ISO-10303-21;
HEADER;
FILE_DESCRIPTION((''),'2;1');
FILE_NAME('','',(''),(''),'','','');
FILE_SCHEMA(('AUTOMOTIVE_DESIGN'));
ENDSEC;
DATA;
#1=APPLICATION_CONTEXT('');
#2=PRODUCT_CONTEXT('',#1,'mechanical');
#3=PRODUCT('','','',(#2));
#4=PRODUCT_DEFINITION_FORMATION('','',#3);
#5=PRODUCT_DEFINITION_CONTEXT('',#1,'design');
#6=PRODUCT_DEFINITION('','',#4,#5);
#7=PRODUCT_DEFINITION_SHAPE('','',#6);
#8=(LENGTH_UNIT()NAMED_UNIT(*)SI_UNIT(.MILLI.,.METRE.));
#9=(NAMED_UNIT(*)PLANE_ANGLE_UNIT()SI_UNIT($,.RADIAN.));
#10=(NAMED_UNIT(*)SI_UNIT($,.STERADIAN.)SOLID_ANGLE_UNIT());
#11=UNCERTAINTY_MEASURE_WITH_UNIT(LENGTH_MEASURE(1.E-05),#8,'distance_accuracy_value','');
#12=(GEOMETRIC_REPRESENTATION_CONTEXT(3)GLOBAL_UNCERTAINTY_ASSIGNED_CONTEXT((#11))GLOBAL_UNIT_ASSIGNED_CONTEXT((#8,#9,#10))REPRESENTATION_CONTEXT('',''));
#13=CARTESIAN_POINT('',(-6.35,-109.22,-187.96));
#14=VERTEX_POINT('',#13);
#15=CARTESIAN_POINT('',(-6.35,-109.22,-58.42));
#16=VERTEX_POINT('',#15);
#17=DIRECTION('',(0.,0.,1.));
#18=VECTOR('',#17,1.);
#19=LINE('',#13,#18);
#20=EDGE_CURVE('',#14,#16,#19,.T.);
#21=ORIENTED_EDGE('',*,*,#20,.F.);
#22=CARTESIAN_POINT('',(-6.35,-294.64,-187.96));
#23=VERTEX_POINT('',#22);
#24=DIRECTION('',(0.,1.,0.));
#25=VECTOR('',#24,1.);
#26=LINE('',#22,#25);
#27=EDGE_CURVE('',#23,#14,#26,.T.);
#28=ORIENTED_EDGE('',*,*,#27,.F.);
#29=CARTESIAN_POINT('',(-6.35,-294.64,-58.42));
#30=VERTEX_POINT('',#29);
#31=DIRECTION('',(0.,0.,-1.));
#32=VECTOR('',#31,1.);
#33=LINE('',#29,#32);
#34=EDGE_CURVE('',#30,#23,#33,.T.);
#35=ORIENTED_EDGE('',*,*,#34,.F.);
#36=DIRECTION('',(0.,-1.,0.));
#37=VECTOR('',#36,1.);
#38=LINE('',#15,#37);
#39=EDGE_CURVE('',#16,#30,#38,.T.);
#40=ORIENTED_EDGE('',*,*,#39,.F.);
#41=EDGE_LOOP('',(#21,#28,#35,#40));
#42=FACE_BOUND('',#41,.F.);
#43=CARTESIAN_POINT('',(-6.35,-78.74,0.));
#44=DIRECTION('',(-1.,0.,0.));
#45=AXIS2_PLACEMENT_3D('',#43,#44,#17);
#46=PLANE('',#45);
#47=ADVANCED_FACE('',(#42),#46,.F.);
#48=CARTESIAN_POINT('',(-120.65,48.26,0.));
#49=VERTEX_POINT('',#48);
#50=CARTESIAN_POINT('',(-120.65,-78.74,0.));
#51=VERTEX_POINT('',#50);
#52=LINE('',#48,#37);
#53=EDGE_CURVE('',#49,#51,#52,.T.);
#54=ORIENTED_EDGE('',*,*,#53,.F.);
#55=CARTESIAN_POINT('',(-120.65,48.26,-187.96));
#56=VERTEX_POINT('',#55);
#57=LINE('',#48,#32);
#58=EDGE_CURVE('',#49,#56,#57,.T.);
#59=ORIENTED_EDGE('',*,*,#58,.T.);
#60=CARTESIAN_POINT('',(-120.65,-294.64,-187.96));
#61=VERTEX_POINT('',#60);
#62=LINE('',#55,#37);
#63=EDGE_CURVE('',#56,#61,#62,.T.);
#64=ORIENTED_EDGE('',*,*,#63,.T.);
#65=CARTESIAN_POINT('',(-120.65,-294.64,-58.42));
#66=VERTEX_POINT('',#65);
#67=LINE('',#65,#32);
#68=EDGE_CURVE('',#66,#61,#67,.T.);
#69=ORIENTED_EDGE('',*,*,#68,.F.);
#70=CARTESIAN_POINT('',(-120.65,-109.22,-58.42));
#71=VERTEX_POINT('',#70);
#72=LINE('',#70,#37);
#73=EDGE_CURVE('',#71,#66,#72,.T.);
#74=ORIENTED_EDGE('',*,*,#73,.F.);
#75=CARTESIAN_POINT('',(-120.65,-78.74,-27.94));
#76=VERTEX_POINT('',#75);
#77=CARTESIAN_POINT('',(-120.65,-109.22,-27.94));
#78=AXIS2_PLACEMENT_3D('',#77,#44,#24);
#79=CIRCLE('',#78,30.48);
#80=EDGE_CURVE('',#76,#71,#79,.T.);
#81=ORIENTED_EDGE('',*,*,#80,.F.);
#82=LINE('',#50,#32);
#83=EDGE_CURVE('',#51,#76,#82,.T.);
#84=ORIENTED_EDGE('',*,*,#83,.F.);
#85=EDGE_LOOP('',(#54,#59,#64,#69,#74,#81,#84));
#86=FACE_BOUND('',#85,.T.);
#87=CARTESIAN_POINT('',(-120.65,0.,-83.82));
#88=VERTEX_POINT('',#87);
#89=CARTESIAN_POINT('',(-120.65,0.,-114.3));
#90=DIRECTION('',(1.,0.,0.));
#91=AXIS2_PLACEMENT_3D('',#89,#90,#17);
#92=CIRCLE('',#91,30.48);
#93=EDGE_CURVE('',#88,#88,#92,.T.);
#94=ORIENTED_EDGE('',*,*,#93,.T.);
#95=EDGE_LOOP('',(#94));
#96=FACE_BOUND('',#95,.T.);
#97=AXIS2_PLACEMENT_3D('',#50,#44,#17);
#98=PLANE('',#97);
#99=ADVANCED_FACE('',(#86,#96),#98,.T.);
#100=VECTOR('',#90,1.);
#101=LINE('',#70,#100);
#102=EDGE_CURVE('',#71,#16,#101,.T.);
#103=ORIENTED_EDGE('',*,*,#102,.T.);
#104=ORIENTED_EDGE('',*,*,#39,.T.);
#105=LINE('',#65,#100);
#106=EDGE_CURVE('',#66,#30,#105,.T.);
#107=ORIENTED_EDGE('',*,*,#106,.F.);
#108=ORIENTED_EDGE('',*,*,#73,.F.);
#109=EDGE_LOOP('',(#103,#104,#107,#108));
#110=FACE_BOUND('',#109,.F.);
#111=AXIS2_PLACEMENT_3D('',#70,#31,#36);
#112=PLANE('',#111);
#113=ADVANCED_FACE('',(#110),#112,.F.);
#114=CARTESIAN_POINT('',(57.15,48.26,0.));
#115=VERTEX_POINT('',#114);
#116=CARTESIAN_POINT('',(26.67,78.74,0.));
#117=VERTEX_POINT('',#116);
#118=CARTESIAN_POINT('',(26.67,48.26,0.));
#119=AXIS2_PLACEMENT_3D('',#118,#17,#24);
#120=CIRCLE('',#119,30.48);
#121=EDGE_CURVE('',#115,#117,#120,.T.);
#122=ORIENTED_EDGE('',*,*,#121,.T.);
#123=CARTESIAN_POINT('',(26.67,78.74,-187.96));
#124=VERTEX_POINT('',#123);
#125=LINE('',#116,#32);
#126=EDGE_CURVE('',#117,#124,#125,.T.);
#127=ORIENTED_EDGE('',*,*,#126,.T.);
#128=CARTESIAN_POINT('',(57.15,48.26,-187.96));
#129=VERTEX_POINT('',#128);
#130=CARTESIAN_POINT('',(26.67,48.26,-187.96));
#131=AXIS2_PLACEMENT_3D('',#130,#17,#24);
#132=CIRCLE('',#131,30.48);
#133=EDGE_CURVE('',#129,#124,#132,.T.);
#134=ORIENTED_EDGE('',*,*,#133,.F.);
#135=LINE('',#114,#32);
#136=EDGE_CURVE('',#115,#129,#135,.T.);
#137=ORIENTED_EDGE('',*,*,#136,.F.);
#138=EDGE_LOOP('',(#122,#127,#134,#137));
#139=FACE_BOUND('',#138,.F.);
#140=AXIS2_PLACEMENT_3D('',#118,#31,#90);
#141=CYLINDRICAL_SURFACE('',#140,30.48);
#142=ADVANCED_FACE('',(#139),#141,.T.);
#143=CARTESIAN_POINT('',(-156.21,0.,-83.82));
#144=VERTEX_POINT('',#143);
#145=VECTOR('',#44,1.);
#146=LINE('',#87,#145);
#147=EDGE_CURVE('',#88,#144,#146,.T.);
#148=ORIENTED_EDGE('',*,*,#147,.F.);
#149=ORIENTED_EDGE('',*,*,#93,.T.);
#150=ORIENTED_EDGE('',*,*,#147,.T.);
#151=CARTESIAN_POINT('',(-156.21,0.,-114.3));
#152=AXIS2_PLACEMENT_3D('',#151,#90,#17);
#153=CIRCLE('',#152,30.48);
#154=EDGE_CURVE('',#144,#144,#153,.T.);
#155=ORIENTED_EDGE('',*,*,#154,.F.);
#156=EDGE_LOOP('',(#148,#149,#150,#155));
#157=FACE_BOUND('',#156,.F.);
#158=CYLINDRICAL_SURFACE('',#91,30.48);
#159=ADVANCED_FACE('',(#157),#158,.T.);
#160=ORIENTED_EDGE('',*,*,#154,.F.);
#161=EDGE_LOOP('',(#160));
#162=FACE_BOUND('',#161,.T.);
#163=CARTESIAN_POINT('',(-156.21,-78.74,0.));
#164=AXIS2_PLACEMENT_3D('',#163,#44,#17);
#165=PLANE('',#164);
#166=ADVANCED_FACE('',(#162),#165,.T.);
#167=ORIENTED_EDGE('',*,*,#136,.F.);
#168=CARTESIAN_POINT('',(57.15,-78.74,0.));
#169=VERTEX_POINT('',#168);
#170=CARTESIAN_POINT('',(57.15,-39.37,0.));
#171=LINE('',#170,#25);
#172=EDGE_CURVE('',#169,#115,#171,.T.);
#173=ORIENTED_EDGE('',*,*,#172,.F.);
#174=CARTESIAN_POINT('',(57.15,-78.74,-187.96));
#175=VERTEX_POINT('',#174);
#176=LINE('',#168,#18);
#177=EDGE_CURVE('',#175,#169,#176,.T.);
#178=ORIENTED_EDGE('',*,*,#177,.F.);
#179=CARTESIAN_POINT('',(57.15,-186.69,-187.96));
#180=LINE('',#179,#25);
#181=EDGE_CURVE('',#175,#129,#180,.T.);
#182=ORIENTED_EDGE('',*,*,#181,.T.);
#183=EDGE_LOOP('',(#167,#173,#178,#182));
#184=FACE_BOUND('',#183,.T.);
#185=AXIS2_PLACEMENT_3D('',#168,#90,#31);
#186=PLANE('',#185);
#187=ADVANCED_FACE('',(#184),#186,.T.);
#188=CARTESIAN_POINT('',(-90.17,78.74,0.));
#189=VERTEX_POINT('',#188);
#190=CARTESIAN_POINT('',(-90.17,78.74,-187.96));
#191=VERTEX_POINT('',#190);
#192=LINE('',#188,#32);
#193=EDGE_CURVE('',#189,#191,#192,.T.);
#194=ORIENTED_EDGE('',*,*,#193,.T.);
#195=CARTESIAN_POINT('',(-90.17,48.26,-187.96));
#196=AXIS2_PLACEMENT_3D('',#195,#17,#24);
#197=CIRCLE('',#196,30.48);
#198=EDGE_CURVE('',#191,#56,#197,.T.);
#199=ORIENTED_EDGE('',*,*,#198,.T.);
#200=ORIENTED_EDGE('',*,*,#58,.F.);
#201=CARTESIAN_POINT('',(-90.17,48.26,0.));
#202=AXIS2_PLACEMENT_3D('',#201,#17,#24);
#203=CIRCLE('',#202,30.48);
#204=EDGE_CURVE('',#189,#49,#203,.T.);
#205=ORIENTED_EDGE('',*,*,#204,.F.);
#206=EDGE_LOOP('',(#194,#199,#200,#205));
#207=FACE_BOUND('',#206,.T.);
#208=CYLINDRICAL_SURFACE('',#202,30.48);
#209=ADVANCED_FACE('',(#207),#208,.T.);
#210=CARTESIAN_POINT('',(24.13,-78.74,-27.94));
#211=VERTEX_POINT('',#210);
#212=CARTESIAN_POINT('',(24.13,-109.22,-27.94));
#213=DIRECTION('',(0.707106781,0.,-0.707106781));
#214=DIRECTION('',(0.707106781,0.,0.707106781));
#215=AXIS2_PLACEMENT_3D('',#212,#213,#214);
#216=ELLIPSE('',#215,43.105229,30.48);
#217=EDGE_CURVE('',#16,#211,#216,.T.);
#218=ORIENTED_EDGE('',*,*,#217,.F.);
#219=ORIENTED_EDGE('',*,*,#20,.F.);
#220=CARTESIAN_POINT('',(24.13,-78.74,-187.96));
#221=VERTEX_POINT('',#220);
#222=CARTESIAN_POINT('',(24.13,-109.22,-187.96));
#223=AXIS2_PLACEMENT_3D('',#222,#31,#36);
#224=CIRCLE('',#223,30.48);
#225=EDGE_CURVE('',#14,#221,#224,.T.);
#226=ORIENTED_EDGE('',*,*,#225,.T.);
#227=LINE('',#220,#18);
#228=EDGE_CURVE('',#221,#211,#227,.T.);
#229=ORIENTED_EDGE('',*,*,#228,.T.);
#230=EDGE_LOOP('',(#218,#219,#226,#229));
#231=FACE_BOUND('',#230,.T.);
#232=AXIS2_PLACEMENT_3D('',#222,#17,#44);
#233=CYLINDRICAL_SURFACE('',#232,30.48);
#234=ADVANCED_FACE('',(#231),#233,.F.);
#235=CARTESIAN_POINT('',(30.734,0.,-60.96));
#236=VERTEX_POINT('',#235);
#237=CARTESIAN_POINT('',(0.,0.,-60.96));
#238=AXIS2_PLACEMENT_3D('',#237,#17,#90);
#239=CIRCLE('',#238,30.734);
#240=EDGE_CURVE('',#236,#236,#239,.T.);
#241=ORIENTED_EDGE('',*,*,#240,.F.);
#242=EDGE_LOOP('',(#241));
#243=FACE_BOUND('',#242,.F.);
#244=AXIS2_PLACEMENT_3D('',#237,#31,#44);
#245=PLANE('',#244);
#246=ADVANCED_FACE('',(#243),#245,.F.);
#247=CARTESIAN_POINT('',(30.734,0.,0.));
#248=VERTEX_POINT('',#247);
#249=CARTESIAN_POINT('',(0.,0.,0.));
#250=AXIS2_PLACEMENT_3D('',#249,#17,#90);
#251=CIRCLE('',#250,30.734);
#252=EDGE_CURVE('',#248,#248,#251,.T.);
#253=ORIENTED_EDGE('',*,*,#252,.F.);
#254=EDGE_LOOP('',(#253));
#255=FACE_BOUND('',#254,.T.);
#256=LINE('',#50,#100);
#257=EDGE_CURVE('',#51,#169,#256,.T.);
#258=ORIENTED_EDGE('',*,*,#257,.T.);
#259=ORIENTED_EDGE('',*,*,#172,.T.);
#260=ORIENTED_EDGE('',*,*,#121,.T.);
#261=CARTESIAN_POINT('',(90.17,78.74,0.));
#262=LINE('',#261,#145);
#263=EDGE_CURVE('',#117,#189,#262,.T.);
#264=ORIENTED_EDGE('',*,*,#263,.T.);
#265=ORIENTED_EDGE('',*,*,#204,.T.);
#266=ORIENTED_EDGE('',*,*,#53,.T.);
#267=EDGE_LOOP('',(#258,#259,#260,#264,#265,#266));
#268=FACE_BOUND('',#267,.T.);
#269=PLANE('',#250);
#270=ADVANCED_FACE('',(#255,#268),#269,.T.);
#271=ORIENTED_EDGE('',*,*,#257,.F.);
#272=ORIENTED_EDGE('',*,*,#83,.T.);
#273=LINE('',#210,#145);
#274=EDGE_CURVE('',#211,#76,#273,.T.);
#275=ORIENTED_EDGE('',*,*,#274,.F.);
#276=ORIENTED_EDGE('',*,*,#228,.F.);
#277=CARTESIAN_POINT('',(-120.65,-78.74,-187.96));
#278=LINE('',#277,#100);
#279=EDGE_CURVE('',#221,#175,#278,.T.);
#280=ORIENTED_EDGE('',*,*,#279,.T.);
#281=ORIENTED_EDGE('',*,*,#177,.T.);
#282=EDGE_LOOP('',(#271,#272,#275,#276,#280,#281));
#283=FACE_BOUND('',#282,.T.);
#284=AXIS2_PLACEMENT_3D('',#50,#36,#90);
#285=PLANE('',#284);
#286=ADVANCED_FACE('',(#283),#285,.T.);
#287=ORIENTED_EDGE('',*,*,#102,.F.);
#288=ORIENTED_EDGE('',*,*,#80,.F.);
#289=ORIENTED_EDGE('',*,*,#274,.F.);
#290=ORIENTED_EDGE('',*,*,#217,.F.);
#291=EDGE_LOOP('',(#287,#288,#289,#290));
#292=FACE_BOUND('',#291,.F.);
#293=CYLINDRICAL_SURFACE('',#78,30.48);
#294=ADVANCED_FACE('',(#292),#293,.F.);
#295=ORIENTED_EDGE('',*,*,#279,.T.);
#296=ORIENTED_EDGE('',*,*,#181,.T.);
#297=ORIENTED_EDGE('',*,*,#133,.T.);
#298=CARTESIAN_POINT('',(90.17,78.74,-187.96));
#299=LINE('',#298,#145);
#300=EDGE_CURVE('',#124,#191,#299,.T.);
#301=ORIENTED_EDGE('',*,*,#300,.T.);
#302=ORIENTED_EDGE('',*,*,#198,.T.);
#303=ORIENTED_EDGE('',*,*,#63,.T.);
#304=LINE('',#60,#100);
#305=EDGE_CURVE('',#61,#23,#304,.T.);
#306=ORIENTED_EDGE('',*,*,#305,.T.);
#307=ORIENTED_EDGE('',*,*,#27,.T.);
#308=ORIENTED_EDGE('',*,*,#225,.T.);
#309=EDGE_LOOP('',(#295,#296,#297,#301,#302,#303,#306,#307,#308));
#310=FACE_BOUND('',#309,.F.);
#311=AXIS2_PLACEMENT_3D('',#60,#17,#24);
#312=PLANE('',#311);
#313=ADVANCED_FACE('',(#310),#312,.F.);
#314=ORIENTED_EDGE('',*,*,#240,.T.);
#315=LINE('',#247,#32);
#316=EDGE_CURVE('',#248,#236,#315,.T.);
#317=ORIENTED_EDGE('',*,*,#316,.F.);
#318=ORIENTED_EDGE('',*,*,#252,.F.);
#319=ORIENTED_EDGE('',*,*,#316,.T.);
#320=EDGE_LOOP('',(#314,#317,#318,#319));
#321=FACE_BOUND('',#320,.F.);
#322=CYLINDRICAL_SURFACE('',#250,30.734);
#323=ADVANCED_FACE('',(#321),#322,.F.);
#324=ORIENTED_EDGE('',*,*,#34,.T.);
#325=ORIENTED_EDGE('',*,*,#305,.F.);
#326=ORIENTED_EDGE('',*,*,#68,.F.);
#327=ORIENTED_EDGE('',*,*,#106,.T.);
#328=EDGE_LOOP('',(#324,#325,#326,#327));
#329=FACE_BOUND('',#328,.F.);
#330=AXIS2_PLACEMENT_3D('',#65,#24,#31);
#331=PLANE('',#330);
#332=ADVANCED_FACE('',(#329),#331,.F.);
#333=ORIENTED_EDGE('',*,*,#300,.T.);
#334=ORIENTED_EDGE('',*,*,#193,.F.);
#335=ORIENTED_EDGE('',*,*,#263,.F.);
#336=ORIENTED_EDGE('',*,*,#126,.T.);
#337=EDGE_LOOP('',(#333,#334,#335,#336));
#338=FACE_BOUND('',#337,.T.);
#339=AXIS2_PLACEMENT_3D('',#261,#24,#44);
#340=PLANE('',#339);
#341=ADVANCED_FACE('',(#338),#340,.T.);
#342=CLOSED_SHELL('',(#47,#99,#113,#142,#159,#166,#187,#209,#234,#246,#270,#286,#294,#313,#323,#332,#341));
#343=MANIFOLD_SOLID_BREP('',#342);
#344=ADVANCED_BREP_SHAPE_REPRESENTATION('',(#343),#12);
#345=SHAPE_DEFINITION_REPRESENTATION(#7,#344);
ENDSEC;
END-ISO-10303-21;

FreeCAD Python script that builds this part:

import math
import FreeCAD as App
import Part
import Sketcher
Q = App.Units.Quantity


def edges_at(feature, points):
    """Names of the edges that pass closest to the given points."""
    edges = feature.Shape.Edges
    near = lambda p: min(range(len(edges)), key=lambda i: edges[i].distToShape(Part.Vertex(*p))[0])
    return sorted({f"Edge{near(p) + 1}" for p in points})

doc = App.newDocument("Part")
params = doc.addObject("Spreadsheet::Sheet", "Params")
for row, (alias, value) in enumerate([
    ("sketch1_radius", "1.2 in"),
    ("sketch1_diameter", "2.42 in"),
    ("sketch1_width", "9.5 in"),
    ("pad1_length", "7.4 in"),
    ("pad2_length", "5 in"),
    ("sketch3_radius", "1.2 in"),
    ("sketch3_height", "5.1 in"),
    ("sketch3_width", "7.3 in"),
    ("pad3_length", "4.5 in"),
    ("fillet_radius", "1.2 in"),
    ("sketch4_diameter", "2.4 in"),
    ("pad4_length", "1.4 in"),
    ("sketch5_width", "8.0625 in"),
    ("sketch5_height", "9.9375 in"),
    ("pocket1_length", "2.5 in"),
    ("fillet2_radius", "1.2 in"),
], start=1):
    params.set(f"A{row}", alias)
    params.set(f"B{row}", "=" + value)
    params.setAlias(f"B{row}", alias)

body = doc.addObject("PartDesign::Body", "Body")

sketch1 = body.newObject("Sketcher::SketchObject", "Sketch")
sketch1.AttachmentSupport = (doc.getObject("XY_Plane"), [""])
sketch1.MapMode = "FlatFace"
sketch1.addGeometry([
    Part.LineSegment(App.Vector(-121, 48, 0), App.Vector(-121, -79, 0)),
    Part.LineSegment(App.Vector(-121, -79, 0), App.Vector(121, -79, 0)),
    Part.LineSegment(App.Vector(121, -79, 0), App.Vector(121, 48, 0)),
    Part.ArcOfCircle(Part.Circle(App.Vector(90, 48, 0), App.Vector(0, 0, 1), 30), math.radians(0), math.radians(90)),
    Part.LineSegment(App.Vector(90, 79, 0), App.Vector(-90, 79, 0)),
    Part.ArcOfCircle(Part.Circle(App.Vector(-90, 48, 0), App.Vector(0, 0, 1), 30), math.radians(90), math.radians(180)),
    Part.Circle(App.Vector(0, 0, 0), App.Vector(0, 0, 1), 31),
], False)
sketch1.addConstraint([
    Sketcher.Constraint("Coincident", 0, 2, 1, 1),
    Sketcher.Constraint("Coincident", 1, 2, 2, 1),
    Sketcher.Constraint("Tangent", 2, 2, 3, 1),
    Sketcher.Constraint("Tangent", 3, 2, 4, 1),
    Sketcher.Constraint("Tangent", 4, 2, 5, 1),
    Sketcher.Constraint("Tangent", 5, 2, 0, 1),
    Sketcher.Constraint("Vertical", 0),
    Sketcher.Constraint("Horizontal", 1),
    Sketcher.Constraint("Vertical", 2),
    Sketcher.Constraint("Horizontal", 4),
    Sketcher.Constraint("Coincident", 6, 3, -1, 1),
    Sketcher.Constraint("Equal", 3, 5),
    Sketcher.Constraint("Radius", 3, Q("1.2 in")),
    Sketcher.Constraint("Diameter", 6, Q("2.42 in")),
    Sketcher.Constraint("DistanceX", 1, 1, 1, 2, Q("9.5 in")),
    Sketcher.Constraint("DistanceY", 0, 2, -1, 1, Q("3.1 in")),
    Sketcher.Constraint("DistanceY", -1, 1, 3, 2, Q("3.1 in")),
    Sketcher.Constraint("DistanceX", 0, 2, -1, 1, Q("4.75 in")),
])
sketch1.setExpression("Constraints[12]", "Params.sketch1_radius")
sketch1.setExpression("Constraints[13]", "Params.sketch1_diameter")
sketch1.setExpression("Constraints[14]", "Params.sketch1_width")
pad1 = body.newObject("PartDesign::Pad", "Pad")
pad1.Profile = sketch1
pad1.setExpression("Length", "Params.pad1_length")
pad1.Reversed = True

sketch2 = body.newObject("Sketcher::SketchObject", "Sketch001")
sketch2.AttachmentSupport = (doc.getObject("XY_Plane"), [""])
sketch2.MapMode = "FlatFace"
sketch2.AttachmentOffset = App.Placement(App.Vector(0, 0, -7.4 * 25.4), App.Rotation())
sketch2.addGeometry(Part.Circle(App.Vector(0, 0, 0), App.Vector(0, 0, 1), 52), False)
sketch2.addConstraint([
    Sketcher.Constraint("Coincident", 0, 3, -1, 1),
    Sketcher.Constraint("Diameter", 0, Q("104.0024 mm")),
])
pad2 = body.newObject("PartDesign::Pad", "Pad001")
pad2.Profile = sketch2
pad2.setExpression("Length", "Params.pad2_length")

sketch3 = body.newObject("Sketcher::SketchObject", "Sketch002")
sketch3.AttachmentSupport = (doc.getObject("YZ_Plane"), [""])
sketch3.MapMode = "FlatFace"
sketch3.AttachmentOffset = App.Placement(App.Vector(0, 0, -4.75 * 25.4), App.Rotation())
sketch3.addGeometry([
    Part.LineSegment(App.Vector(-295, -58, 0), App.Vector(-109, -58, 0)),
    Part.ArcOfCircle(Part.Circle(App.Vector(-109, -28, 0), App.Vector(0, 0, 1), 30), math.radians(-90), math.radians(0)),
    Part.LineSegment(App.Vector(-79, -28, 0), App.Vector(-79, -188, 0)),
    Part.LineSegment(App.Vector(-79, -188, 0), App.Vector(-295, -188, 0)),
    Part.LineSegment(App.Vector(-295, -188, 0), App.Vector(-295, -58, 0)),
], False)
sketch3.addConstraint([
    Sketcher.Constraint("Tangent", 0, 2, 1, 1),
    Sketcher.Constraint("Tangent", 1, 2, 2, 1),
    Sketcher.Constraint("Coincident", 2, 2, 3, 1),
    Sketcher.Constraint("Coincident", 3, 2, 4, 1),
    Sketcher.Constraint("Coincident", 4, 2, 0, 1),
    Sketcher.Constraint("Horizontal", 0),
    Sketcher.Constraint("Vertical", 2),
    Sketcher.Constraint("Horizontal", 3),
    Sketcher.Constraint("Vertical", 4),
    Sketcher.Constraint("Radius", 1, Q("1.2 in")),
    Sketcher.Constraint("DistanceY", 4, 1, 4, 2, Q("5.1 in")),
    Sketcher.Constraint("DistanceX", 0, 1, 0, 2, Q("7.3 in")),
    Sketcher.Constraint("DistanceX", 1, 3, -1, 1, Q("4.3 in")),
    Sketcher.Constraint("DistanceY", 1, 3, -1, 1, Q("1.1 in")),
])
sketch3.setExpression("Constraints[9]", "Params.sketch3_radius")
sketch3.setExpression("Constraints[10]", "Params.sketch3_height")
sketch3.setExpression("Constraints[11]", "Params.sketch3_width")
pad3 = body.newObject("PartDesign::Pad", "Pad002")
pad3.Profile = sketch3
pad3.setExpression("Length", "Params.pad3_length")
doc.recompute()

fillet = body.newObject("PartDesign::Fillet", "Fillet")
fillet.Base = (pad3, edges_at(pad3, [(-6.35, -78.74, -107.95)]))
fillet.setExpression("Radius", "Params.fillet_radius")

sketch4 = body.newObject("Sketcher::SketchObject", "Sketch003")
sketch4.AttachmentSupport = (doc.getObject("YZ_Plane"), [""])
sketch4.MapMode = "FlatFace"
sketch4.AttachmentOffset = App.Placement(App.Vector(0, 0, -4.75 * 25.4), App.Rotation())
sketch4.addGeometry(Part.Circle(App.Vector(0, -114, 0), App.Vector(0, 0, 1), 30), False)
sketch4.addConstraint([
    Sketcher.Constraint("PointOnObject", 0, 3, -2),
    Sketcher.Constraint("Diameter", 0, Q("2.4 in")),
    Sketcher.Constraint("DistanceY", 0, 3, -1, 1, Q("4.5 in")),
])
sketch4.setExpression("Constraints[1]", "Params.sketch4_diameter")
pad4 = body.newObject("PartDesign::Pad", "Pad003")
pad4.Profile = sketch4
pad4.setExpression("Length", "Params.pad4_length")
pad4.Reversed = True

sketch5 = body.newObject("Sketcher::SketchObject", "Sketch004")
sketch5.AttachmentSupport = (doc.getObject("YZ_Plane"), [""])
sketch5.MapMode = "FlatFace"
sketch5.AttachmentOffset = App.Placement(App.Vector(0, 0, 4.75 * 25.4), App.Rotation())
sketch5.addGeometry([
    Part.LineSegment(App.Vector(109, 24, 0), App.Vector(-96, 24, 0)),
    Part.LineSegment(App.Vector(-96, 24, 0), App.Vector(-96, -229, 0)),
    Part.LineSegment(App.Vector(-96, -229, 0), App.Vector(109, -229, 0)),
    Part.LineSegment(App.Vector(109, -229, 0), App.Vector(109, 24, 0)),
], False)
sketch5.addConstraint([
    Sketcher.Constraint("Coincident", 0, 2, 1, 1),
    Sketcher.Constraint("Coincident", 1, 2, 2, 1),
    Sketcher.Constraint("Coincident", 2, 2, 3, 1),
    Sketcher.Constraint("Coincident", 3, 2, 0, 1),
    Sketcher.Constraint("Horizontal", 0),
    Sketcher.Constraint("Vertical", 1),
    Sketcher.Constraint("Horizontal", 2),
    Sketcher.Constraint("Vertical", 3),
    Sketcher.Constraint("DistanceY", 1, 2, -1, 1, Q("9 in")),
    Sketcher.Constraint("DistanceX", 0, 2, 0, 1, Q("8.0625 in")),
    Sketcher.Constraint("DistanceY", 1, 2, 1, 1, Q("9.9375 in")),
    Sketcher.Constraint("DistanceX", -1, 1, 2, 2, Q("4.275 in")),
])
sketch5.setExpression("Constraints[9]", "Params.sketch5_width")
sketch5.setExpression("Constraints[10]", "Params.sketch5_height")
pocket1 = body.newObject("PartDesign::Pocket", "Pocket")
pocket1.Profile = sketch5
pocket1.setExpression("Length", "Params.pocket1_length")
doc.recompute()

fillet2 = body.newObject("PartDesign::Fillet", "Fillet001")
fillet2.Base = (pocket1, edges_at(pocket1, [(57.15, 78.74, -93.98)]))
fillet2.setExpression("Radius", "Params.fillet2_radius")

doc.recompute()
